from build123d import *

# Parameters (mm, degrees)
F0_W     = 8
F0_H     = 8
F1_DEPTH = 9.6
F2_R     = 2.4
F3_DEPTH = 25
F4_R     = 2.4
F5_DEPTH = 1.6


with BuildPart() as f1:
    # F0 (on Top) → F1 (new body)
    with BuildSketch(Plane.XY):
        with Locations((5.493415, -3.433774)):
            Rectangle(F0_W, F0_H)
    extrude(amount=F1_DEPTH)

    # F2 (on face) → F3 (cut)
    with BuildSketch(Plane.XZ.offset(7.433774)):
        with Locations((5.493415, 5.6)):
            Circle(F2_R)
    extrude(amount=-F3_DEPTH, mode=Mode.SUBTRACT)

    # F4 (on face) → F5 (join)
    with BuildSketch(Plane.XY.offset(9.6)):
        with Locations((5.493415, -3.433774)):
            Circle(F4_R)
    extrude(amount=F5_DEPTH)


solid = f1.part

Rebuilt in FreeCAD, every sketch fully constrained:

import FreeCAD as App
import Part
import Sketcher
from FreeCAD import Vector

doc = App.newDocument("Part")
body = doc.addObject("PartDesign::Body", "Body")

sketch1 = doc.addObject("Sketcher::SketchObject", "Sketch")
body.addObject(sketch1)
sketch1.AttachmentSupport = (doc.XY_Plane, [""])
sketch1.MapMode = "FlatFace"
sketch1.addGeometry([
    Part.LineSegment(Vector(1, 1, 0), Vector(1, -7, 0)),
    Part.LineSegment(Vector(1, -7, 0), Vector(9, -7, 0)),
    Part.LineSegment(Vector(9, -7, 0), Vector(9, 1, 0)),
    Part.LineSegment(Vector(9, 1, 0), Vector(1, 1, 0)),
], False)
sketch1.addConstraint([
    Sketcher.Constraint("Coincident", 0, 2, 1, 1),
    Sketcher.Constraint("Coincident", 1, 2, 2, 1),
    Sketcher.Constraint("Coincident", 2, 2, 3, 1),
    Sketcher.Constraint("Coincident", 3, 2, 0, 1),
    Sketcher.Constraint("Vertical", 0),
    Sketcher.Constraint("Horizontal", 1),
    Sketcher.Constraint("Vertical", 2),
    Sketcher.Constraint("Horizontal", 3),
    Sketcher.Constraint("Equal", 3, 0),
    Sketcher.Constraint("DistanceX", 1, 1, 1, 2, 8.0),
    Sketcher.Constraint("DistanceX", -1, 1, 0, 2, 1.493415),
    Sketcher.Constraint("DistanceY", 0, 2, -1, 1, 7.433774),
])
pad1 = doc.addObject("PartDesign::Pad", "Pad")
body.addObject(pad1)
pad1.Profile = sketch1
pad1.Length = 9.6

sketch2 = doc.addObject("Sketcher::SketchObject", "Sketch001")
body.addObject(sketch2)
sketch2.AttachmentSupport = (doc.XZ_Plane, [""])
sketch2.MapMode = "FlatFace"
sketch2.AttachmentOffset = App.Placement(Vector(0, 0, 7.433774), App.Rotation())
sketch2.addGeometry(Part.Circle(Vector(5.5, 5.6, 0), Vector(0, 0, 1), 2.4), False)
sketch2.addConstraint([
    Sketcher.Constraint("Diameter", 0, 4.8),
    Sketcher.Constraint("DistanceY", -1, 1, 0, 3, 5.6),
    Sketcher.Constraint("DistanceX", -1, 1, 0, 3, 5.493415),
])
pocket1 = doc.addObject("PartDesign::Pocket", "Pocket")
body.addObject(pocket1)
pocket1.Profile = sketch2
pocket1.Length = 25

sketch3 = doc.addObject("Sketcher::SketchObject", "Sketch002")
body.addObject(sketch3)
sketch3.AttachmentSupport = (doc.XY_Plane, [""])
sketch3.MapMode = "FlatFace"
sketch3.AttachmentOffset = App.Placement(Vector(0, 0, 9.6), App.Rotation())
sketch3.addGeometry(Part.Circle(Vector(5.5, -3.4, 0), Vector(0, 0, 1), 2.4), False)
sketch3.addConstraint([
    Sketcher.Constraint("Diameter", 0, 4.8),
    Sketcher.Constraint("DistanceX", -1, 1, 0, 3, 5.493415),
    Sketcher.Constraint("DistanceY", 0, 3, -1, 1, 3.433774),
])
pad2 = doc.addObject("PartDesign::Pad", "Pad001")
body.addObject(pad2)
pad2.Profile = sketch3
pad2.Length = 1.6

doc.recompute()
